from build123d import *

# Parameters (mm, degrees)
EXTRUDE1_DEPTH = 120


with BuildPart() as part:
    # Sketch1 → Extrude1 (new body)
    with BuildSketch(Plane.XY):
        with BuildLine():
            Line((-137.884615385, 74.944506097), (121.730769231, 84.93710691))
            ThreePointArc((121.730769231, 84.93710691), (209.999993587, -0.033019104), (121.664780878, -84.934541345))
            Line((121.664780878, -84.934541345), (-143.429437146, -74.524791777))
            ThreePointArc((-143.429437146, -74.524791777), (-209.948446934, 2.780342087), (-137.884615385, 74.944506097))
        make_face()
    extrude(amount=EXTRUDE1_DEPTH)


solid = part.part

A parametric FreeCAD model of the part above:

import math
import FreeCAD as App
import Part
import Sketcher
Q = App.Units.Quantity

doc = App.newDocument("Part")
body = doc.addObject("PartDesign::Body", "Body")

# Sketch on XY plane
sketch1 = body.newObject("Sketcher::SketchObject", "Sketch")
sketch1.AttachmentSupport = (doc.getObject("XY_Plane"), [""])
sketch1.MapMode = "FlatFace"
sketch1.addGeometry([
    Part.LineSegment(App.Vector(122, 85, 0), App.Vector(-138, 75, 0)),
    Part.ArcOfCircle(Part.Circle(App.Vector(-135, 0, 0), App.Vector(0, 0, 1), 75), math.radians(92), math.radians(264)),
    Part.LineSegment(App.Vector(-143, -75, 0), App.Vector(122, -85, 0)),
    Part.ArcOfCircle(Part.Circle(App.Vector(125, 0, 0), App.Vector(0, 0, 1), 85), math.radians(-92), math.radians(92)),
], False)
sketch1.addConstraint([
    Sketcher.Constraint("Tangent", 0, 2, 1, 1),
    Sketcher.Constraint("Coincident", 1, 2, 2, 1),
    Sketcher.Constraint("Tangent", 2, 2, 3, 1),
    Sketcher.Constraint("Tangent", 3, 2, 0, 1),
    Sketcher.Constraint("PointOnObject", 1, 3, -1),
    Sketcher.Constraint("PointOnObject", 3, 3, -1),
    Sketcher.Constraint("Radius", 1, Q("75 mm")),
    Sketcher.Constraint("Radius", 3, Q("85 mm")),
    Sketcher.Constraint("DistanceX", 1, 3, -1, 1, Q("135 mm")),
    Sketcher.Constraint("DistanceX", -1, 1, 3, 3, Q("125 mm")),
    Sketcher.Constraint("DistanceY", 1, 2, 3, 2, Q("159.461899 mm")),
])
pad1 = body.newObject("PartDesign::Pad", "Pad")
pad1.Profile = sketch1
pad1.Length = 120

doc.recompute()
